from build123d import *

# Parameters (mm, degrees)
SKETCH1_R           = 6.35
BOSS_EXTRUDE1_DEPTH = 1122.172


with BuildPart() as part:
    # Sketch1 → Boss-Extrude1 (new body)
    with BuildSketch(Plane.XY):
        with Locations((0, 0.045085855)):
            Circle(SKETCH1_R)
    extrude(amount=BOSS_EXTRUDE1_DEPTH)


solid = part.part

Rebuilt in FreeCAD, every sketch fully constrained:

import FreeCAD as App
import Part
import Sketcher
from FreeCAD import Vector
Q = App.Units.Quantity

doc = App.newDocument("Part")
body = doc.addObject("PartDesign::Body", "Body")

sketch1 = body.newObject("Sketcher::SketchObject", "Sketch")
sketch1.AttachmentSupport = (doc.getObject("XY_Plane"), [""])
sketch1.MapMode = "FlatFace"
sketch1.addGeometry(Part.Circle(Vector(0, 0, 0), Vector(0, 0, 1), 6), False)
sketch1.addConstraint([
    Sketcher.Constraint("PointOnObject", 0, 3, -2),
    Sketcher.Constraint("Diameter", 0, Q("0.5 in")),
    Sketcher.Constraint("DistanceY", -1, 1, 0, 3, 0.045086),
])
pad1 = body.newObject("PartDesign::Pad", "Pad")
pad1.Profile = sketch1
pad1.Length = Q("44.18 in")

doc.recompute()
